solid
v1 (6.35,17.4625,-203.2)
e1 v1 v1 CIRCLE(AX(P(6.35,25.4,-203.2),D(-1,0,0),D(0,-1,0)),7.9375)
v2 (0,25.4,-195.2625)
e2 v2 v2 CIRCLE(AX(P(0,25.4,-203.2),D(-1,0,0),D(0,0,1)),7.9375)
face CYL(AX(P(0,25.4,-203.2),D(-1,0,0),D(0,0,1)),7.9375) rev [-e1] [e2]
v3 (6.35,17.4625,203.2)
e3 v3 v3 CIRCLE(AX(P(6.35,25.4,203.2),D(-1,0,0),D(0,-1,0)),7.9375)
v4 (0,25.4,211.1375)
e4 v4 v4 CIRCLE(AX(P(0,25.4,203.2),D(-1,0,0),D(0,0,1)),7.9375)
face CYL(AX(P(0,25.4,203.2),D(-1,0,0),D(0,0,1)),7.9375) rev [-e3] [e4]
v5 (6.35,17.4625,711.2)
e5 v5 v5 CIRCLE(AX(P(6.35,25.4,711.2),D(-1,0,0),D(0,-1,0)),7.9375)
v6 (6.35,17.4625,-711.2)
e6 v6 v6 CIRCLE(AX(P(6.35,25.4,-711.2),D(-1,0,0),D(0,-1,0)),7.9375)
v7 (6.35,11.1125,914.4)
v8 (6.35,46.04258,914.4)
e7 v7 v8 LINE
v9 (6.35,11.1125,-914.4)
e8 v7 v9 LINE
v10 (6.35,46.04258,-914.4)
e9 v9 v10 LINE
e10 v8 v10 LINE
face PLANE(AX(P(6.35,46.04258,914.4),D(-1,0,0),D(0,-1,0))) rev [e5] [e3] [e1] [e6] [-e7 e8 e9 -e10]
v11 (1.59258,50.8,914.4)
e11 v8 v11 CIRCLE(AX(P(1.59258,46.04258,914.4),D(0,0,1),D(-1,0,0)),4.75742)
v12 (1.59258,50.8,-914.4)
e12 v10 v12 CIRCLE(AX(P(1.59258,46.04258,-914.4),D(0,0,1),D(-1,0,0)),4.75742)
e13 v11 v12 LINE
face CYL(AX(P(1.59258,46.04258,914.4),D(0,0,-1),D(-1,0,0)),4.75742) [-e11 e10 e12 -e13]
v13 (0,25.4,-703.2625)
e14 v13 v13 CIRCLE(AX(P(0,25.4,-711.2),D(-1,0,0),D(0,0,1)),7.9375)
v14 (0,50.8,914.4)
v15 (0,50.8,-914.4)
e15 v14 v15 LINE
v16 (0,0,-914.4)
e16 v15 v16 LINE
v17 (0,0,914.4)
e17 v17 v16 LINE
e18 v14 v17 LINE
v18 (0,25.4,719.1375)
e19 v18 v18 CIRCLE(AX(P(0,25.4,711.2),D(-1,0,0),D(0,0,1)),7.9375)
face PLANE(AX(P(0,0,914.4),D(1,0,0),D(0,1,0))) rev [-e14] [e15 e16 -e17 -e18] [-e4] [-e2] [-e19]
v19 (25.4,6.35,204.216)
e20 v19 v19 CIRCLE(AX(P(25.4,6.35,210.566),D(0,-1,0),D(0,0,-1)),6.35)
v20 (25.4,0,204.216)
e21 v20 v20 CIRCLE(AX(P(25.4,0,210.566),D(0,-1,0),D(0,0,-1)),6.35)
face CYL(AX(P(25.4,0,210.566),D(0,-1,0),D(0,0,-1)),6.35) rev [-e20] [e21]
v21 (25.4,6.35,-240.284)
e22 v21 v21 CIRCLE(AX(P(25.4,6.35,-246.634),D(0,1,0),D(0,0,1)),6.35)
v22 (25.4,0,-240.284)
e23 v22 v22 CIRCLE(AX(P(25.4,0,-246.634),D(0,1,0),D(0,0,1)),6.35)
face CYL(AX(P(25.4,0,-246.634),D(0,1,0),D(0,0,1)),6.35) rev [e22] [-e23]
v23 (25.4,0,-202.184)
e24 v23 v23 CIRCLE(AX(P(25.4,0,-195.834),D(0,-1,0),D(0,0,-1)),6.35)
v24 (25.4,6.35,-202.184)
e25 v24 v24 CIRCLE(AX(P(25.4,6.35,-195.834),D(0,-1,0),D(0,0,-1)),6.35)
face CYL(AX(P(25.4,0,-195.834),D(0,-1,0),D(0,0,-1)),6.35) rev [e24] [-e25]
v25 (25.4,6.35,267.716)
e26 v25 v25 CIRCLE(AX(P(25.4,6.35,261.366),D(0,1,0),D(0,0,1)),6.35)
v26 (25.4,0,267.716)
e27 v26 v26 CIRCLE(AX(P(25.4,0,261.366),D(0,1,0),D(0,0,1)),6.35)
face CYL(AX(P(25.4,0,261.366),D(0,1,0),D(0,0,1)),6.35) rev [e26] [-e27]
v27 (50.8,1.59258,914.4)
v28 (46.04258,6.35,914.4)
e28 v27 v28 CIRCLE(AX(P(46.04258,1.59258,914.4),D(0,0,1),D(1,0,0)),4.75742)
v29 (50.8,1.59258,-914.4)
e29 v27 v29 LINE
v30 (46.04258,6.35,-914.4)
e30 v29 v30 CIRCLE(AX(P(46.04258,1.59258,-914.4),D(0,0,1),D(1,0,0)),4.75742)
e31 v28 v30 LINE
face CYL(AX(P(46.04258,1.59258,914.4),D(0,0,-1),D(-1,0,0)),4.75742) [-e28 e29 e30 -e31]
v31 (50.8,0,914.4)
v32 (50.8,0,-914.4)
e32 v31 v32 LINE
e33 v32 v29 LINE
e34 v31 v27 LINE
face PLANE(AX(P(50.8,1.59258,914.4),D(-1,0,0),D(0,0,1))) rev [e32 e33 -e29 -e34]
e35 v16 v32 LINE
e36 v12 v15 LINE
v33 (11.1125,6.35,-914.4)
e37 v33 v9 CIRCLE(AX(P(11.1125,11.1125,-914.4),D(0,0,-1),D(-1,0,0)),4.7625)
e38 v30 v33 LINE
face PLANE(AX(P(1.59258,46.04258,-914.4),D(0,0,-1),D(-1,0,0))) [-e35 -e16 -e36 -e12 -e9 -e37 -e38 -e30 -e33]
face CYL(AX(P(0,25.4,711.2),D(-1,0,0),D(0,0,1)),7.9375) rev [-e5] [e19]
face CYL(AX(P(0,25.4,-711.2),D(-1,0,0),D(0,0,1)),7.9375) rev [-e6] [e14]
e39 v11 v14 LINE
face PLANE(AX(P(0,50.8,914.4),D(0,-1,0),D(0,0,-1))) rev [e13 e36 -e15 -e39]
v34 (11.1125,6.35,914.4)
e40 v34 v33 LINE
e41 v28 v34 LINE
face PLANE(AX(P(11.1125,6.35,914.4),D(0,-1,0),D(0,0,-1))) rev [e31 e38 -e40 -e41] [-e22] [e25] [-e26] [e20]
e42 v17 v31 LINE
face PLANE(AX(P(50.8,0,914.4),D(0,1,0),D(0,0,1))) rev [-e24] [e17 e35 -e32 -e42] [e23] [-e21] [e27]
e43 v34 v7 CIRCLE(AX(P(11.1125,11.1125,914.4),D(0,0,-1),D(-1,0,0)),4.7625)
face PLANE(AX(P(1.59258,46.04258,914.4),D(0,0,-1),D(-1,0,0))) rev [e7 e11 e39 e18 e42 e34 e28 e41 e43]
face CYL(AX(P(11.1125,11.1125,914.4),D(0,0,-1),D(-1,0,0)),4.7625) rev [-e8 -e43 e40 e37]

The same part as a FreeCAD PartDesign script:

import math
import FreeCAD as App
import Part
import Sketcher
from FreeCAD import Vector
Q = App.Units.Quantity

doc = App.newDocument("Part")
body = doc.addObject("PartDesign::Body", "Body")

# Sketch on XY plane
sketch1 = body.newObject("Sketcher::SketchObject", "Sketch")
sketch1.AttachmentSupport = (doc.getObject("XY_Plane"), [""])
sketch1.MapMode = "FlatFace"
sketch1.addGeometry([
    Part.LineSegment(Vector(0, 50.8, 0), Vector(0, 0, 0)),  # 0
    Part.LineSegment(Vector(0, 0, 0), Vector(50.8, 0, 0)),  # 1
    Part.LineSegment(Vector(50.8, 0, 0), Vector(50.8, 1.6, 0)),  # 2
    Part.ArcOfCircle(Part.Circle(Vector(46, 1.6, 0), Vector(0, 0, 1), 4.8), math.radians(0), math.radians(90)),  # 3
    Part.LineSegment(Vector(46, 6.3, 0), Vector(11.1, 6.3, 0)),  # 4
    Part.ArcOfCircle(Part.Circle(Vector(11.1, 11.1, 0), Vector(0, 0, 1), 4.8), math.radians(-180), math.radians(-90)),  # 5
    Part.LineSegment(Vector(6.3, 11.1, 0), Vector(6.3, 46, 0)),  # 6
    Part.ArcOfCircle(Part.Circle(Vector(1.6, 46, 0), Vector(0, 0, 1), 4.8), math.radians(0), math.radians(90)),  # 7
    Part.LineSegment(Vector(1.6, 50.8, 0), Vector(0, 50.8, 0)),  # 8
], False)
sketch1.addConstraint([
    Sketcher.Constraint("Coincident", 0, 2, 1, 1),
    Sketcher.Constraint("Coincident", 1, 2, 2, 1),
    Sketcher.Constraint("Tangent", 2, 2, 3, 1),
    Sketcher.Constraint("Tangent", 3, 2, 4, 1),
    Sketcher.Constraint("Tangent", 4, 2, 5, 2),
    Sketcher.Constraint("Tangent", 5, 1, 6, 1),
    Sketcher.Constraint("Tangent", 6, 2, 7, 1),
    Sketcher.Constraint("Tangent", 7, 2, 8, 1),
    Sketcher.Constraint("Coincident", 8, 2, 0, 1),
    Sketcher.Constraint("Vertical", 0),
    Sketcher.Constraint("Horizontal", 1),
    Sketcher.Constraint("Vertical", 2),
    Sketcher.Constraint("Horizontal", 4),
    Sketcher.Constraint("Vertical", 6),
    Sketcher.Constraint("Horizontal", 8),
    Sketcher.Constraint("Coincident", 0, 2, -1, 1),
    Sketcher.Constraint("Equal", 3, 7),
    Sketcher.Constraint("Equal", 1, 0),
    Sketcher.Constraint("Equal", 8, 2),
    Sketcher.Constraint("DistanceX", 1, 1, 1, 2, Q("2 in")),
    Sketcher.Constraint("Radius", 5, Q("0.1875 in")),
    Sketcher.Constraint("Radius", 3, Q("0.1873 in")),
    Sketcher.Constraint("DistanceY", -1, 1, 3, 2, Q("0.25 in")),
])
pad1 = body.newObject("PartDesign::Pad", "Pad")
pad1.Profile = sketch1
pad1.Length = Q("72 in")
pad1.Midplane = True

# Sketch on XZ plane
sketch2 = body.newObject("Sketcher::SketchObject", "Sketch001")
sketch2.AttachmentSupport = (doc.getObject("XZ_Plane"), [""])
sketch2.MapMode = "FlatFace"
sketch2.addGeometry([
    Part.Circle(Vector(25, -196, 0), Vector(0, 0, 1), 6),
    Part.Circle(Vector(25, 211, 0), Vector(0, 0, 1), 6),
], False)
sketch2.addConstraint([
    Sketcher.Constraint("Equal", 0, 1),
    Sketcher.Constraint("Vertical", 0, 3, 1, 3),
    Sketcher.Constraint("Diameter", 0, Q("0.5 in")),
    Sketcher.Constraint("DistanceX", -1, 1, 0, 3, Q("1 in")),
    Sketcher.Constraint("DistanceY", 0, 3, 1, 3, Q("16 in")),
    Sketcher.Constraint("DistanceY", 0, 3, -1, 1, Q("7.71 in")),
])
doc.recompute()
hole = body.newObject("PartDesign::Hole", "Hole")
hole.Profile = sketch2
hole.ThreadType = "None"
hole.Diameter = Q("0.5 in")
hole.DepthType = "Dimension"
hole.Depth = Q("0.25 in")
hole.DrillPoint = "Flat"

# Sketch on YZ plane
sketch3 = body.newObject("Sketcher::SketchObject", "Sketch002")
sketch3.AttachmentSupport = (doc.getObject("YZ_Plane"), [""])
sketch3.MapMode = "FlatFace"
sketch3.addGeometry([
    Part.Circle(Vector(25, -711, 0), Vector(0, 0, 1), 8),
    Part.Circle(Vector(25, -203, 0), Vector(0, 0, 1), 8),
    Part.Circle(Vector(25, 203, 0), Vector(0, 0, 1), 8),
    Part.Circle(Vector(25, 711, 0), Vector(0, 0, 1), 8),
], False)
sketch3.addConstraint([
    Sketcher.Constraint("Equal", 0, 1),
    Sketcher.Constraint("Equal", 1, 2),
    Sketcher.Constraint("Equal", 2, 3),
    Sketcher.Constraint("Symmetric", 1, 3, 2, 3, -1),
    Sketcher.Constraint("Symmetric", 0, 3, 3, 3, -1),
    Sketcher.Constraint("Vertical", 0, 3, 1, 3),
    Sketcher.Constraint("Diameter", 0, Q("0.625 in")),
    Sketcher.Constraint("DistanceX", -1, 1, 0, 3, Q("1 in")),
    Sketcher.Constraint("DistanceY", 0, 3, -1, 1, Q("28 in")),
    Sketcher.Constraint("DistanceY", 1, 3, -1, 1, Q("8 in")),
])
doc.recompute()
hole2 = body.newObject("PartDesign::Hole", "Hole001")
hole2.Profile = sketch3
hole2.ThreadType = "None"
hole2.Diameter = Q("0.625 in")
hole2.DepthType = "Dimension"
hole2.Depth = Q("0.25 in")
hole2.DrillPoint = "Flat"
hole2.Reversed = True

# Sketch on XZ plane
sketch4 = body.newObject("Sketcher::SketchObject", "Sketch003")
sketch4.AttachmentSupport = (doc.getObject("XZ_Plane"), [""])
sketch4.MapMode = "FlatFace"
sketch4.AttachmentOffset = App.Placement(Vector(0, 0, -0.25 * 25.4), App.Rotation())
sketch4.addGeometry([
    Part.Circle(Vector(25, -247, 0), Vector(0, 0, 1), 6),
    Part.Circle(Vector(25, 261, 0), Vector(0, 0, 1), 6),
], False)
sketch4.addConstraint([
    Sketcher.Constraint("Equal", 0, 1),
    Sketcher.Constraint("Vertical", 0, 3, 1, 3),
    Sketcher.Constraint("Diameter", 0, Q("0.5 in")),
    Sketcher.Constraint("DistanceX", -1, 1, 0, 3, Q("1 in")),
    Sketcher.Constraint("DistanceY", 0, 3, 1, 3, Q("20 in")),
    Sketcher.Constraint("DistanceY", 0, 3, -1, 1, Q("9.71 in")),
])
pocket1 = body.newObject("PartDesign::Pocket", "Pocket")
pocket1.Profile = sketch4
pocket1.Type = "ThroughAll"
pocket1.Reversed = True

doc.recompute()
